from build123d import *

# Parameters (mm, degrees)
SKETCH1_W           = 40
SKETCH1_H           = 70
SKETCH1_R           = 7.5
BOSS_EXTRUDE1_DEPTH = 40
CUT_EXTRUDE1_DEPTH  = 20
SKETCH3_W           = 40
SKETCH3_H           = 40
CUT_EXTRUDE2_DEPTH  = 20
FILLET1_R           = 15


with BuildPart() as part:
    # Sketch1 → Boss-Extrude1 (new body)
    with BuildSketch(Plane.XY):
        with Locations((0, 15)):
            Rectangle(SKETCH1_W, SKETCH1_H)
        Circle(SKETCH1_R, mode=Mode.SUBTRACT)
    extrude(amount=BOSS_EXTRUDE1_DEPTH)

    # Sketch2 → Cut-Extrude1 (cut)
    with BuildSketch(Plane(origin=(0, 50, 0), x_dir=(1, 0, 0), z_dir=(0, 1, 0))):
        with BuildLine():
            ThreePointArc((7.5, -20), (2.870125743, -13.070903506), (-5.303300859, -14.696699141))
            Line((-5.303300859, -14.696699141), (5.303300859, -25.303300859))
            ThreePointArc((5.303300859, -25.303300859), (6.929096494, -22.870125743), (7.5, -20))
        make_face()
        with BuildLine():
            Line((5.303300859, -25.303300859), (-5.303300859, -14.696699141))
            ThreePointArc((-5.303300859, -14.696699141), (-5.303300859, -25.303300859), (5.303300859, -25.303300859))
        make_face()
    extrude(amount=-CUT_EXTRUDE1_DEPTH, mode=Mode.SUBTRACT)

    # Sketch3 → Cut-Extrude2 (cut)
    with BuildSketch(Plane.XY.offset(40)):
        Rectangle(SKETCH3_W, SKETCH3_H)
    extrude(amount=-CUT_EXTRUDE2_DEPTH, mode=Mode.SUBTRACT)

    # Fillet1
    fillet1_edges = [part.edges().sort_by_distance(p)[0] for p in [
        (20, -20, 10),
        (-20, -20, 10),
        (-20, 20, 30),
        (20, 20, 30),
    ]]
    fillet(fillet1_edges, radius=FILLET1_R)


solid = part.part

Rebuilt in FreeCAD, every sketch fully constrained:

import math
import FreeCAD as App
import Part
import Sketcher

V = App.Vector
Q = App.Units.Quantity


def edges_at(feature, points):
    """Names of the edges that pass closest to the given points."""
    edges = feature.Shape.Edges
    near = lambda p: min(range(len(edges)), key=lambda i: edges[i].distToShape(Part.Vertex(*p))[0])
    return sorted({f"Edge{near(p) + 1}" for p in points})

doc = App.newDocument("Part")
body = doc.addObject("PartDesign::Body", "Body")

sketch1 = body.newObject("Sketcher::SketchObject", "Sketch")
sketch1.AttachmentSupport = (doc.getObject("XY_Plane"), [""])
sketch1.MapMode = "FlatFace"
sketch1.addGeometry([
    Part.LineSegment(V(-20, 50, 0), V(-20, -20, 0)),
    Part.LineSegment(V(-20, -20, 0), V(20, -20, 0)),
    Part.LineSegment(V(20, -20, 0), V(20, 50, 0)),
    Part.LineSegment(V(20, 50, 0), V(-20, 50, 0)),
    Part.Circle(V(0, 0, 0), V(0, 0, 1), 8),
], False)
sketch1.addConstraint([
    Sketcher.Constraint("Coincident", 0, 2, 1, 1),
    Sketcher.Constraint("Coincident", 1, 2, 2, 1),
    Sketcher.Constraint("Coincident", 2, 2, 3, 1),
    Sketcher.Constraint("Coincident", 3, 2, 0, 1),
    Sketcher.Constraint("Vertical", 0),
    Sketcher.Constraint("Horizontal", 1),
    Sketcher.Constraint("Vertical", 2),
    Sketcher.Constraint("Horizontal", 3),
    Sketcher.Constraint("Coincident", 4, 3, -1, 1),
    Sketcher.Constraint("Diameter", 4, Q("15 mm")),
    Sketcher.Constraint("DistanceX", 1, 1, 1, 2, Q("40 mm")),
    Sketcher.Constraint("DistanceY", 0, 2, 0, 1, Q("70 mm")),
    Sketcher.Constraint("DistanceX", 0, 2, -1, 1, Q("20 mm")),
    Sketcher.Constraint("DistanceY", 0, 2, -1, 1, Q("20 mm")),
])
pad1 = body.newObject("PartDesign::Pad", "Pad")
pad1.Profile = sketch1
pad1.Length = 40

sketch2 = body.newObject("Sketcher::SketchObject", "Sketch001")
sketch2.AttachmentSupport = (doc.getObject("XZ_Plane"), [""])
sketch2.MapMode = "FlatFace"
sketch2.AttachmentOffset = App.Placement(V(0, 0, -50), App.Rotation())
sketch2.addGeometry([
    Part.ArcOfCircle(Part.Circle(V(0, 20, 0), V(0, 0, 1), 8), math.radians(-135), math.radians(0)),
    Part.ArcOfCircle(Part.Circle(V(0, 20, 0), V(0, 0, 1), 8), math.radians(45), math.radians(225)),
    Part.ArcOfCircle(Part.Circle(V(0, 20, 0), V(0, 0, 1), 7), math.radians(0), math.radians(45)),
], False)
sketch2.addConstraint([
    Sketcher.Constraint("Tangent", 0, 1, 1, 2),
    Sketcher.Constraint("Tangent", 1, 1, 2, 2),
    Sketcher.Constraint("Tangent", 2, 1, 0, 2),
    Sketcher.Constraint("PointOnObject", 0, 3, -2),
    Sketcher.Constraint("Horizontal", 1, 3, 2, 1),
    Sketcher.Constraint("Radius", 0, Q("7.5 mm")),
    Sketcher.Constraint("DistanceY", -1, 1, 0, 3, Q("20 mm")),
    Sketcher.Constraint("DistanceX", 0, 1, -1, 1, Q("5.303301 mm")),
    Sketcher.Constraint("DistanceX", -1, 1, 1, 1, Q("5.303301 mm")),
])
pocket1 = body.newObject("PartDesign::Pocket", "Pocket")
pocket1.Profile = sketch2
pocket1.Length = 20
pocket1.Reversed = True

sketch3 = body.newObject("Sketcher::SketchObject", "Sketch002")
sketch3.AttachmentSupport = (doc.getObject("XY_Plane"), [""])
sketch3.MapMode = "FlatFace"
sketch3.AttachmentOffset = App.Placement(V(0, 0, 40), App.Rotation())
sketch3.addGeometry([
    Part.LineSegment(V(-20, 20, 0), V(-20, -20, 0)),
    Part.LineSegment(V(-20, -20, 0), V(20, -20, 0)),
    Part.LineSegment(V(20, -20, 0), V(20, 20, 0)),
    Part.LineSegment(V(20, 20, 0), V(-20, 20, 0)),
], False)
sketch3.addConstraint([
    Sketcher.Constraint("Coincident", 0, 2, 1, 1),
    Sketcher.Constraint("Coincident", 1, 2, 2, 1),
    Sketcher.Constraint("Coincident", 2, 2, 3, 1),
    Sketcher.Constraint("Coincident", 3, 2, 0, 1),
    Sketcher.Constraint("Vertical", 0),
    Sketcher.Constraint("Horizontal", 1),
    Sketcher.Constraint("Vertical", 2),
    Sketcher.Constraint("Horizontal", 3),
    Sketcher.Constraint("Symmetric", 0, 2, 2, 2, -1, 1),
    Sketcher.Constraint("Equal", 3, 0),
    Sketcher.Constraint("DistanceX", 1, 1, 1, 2, Q("40 mm")),
])
pocket2 = body.newObject("PartDesign::Pocket", "Pocket001")
pocket2.Profile = sketch3
pocket2.Length = 20
doc.recompute()

fillet = body.newObject("PartDesign::Fillet", "Fillet")
fillet.Base = (pocket2, edges_at(pocket2, [
    (20, -20, 10),
    (-20, -20, 10),
    (-20, 20, 30),
    (20, 20, 30),
]))
fillet.Radius = 15

doc.recompute()
